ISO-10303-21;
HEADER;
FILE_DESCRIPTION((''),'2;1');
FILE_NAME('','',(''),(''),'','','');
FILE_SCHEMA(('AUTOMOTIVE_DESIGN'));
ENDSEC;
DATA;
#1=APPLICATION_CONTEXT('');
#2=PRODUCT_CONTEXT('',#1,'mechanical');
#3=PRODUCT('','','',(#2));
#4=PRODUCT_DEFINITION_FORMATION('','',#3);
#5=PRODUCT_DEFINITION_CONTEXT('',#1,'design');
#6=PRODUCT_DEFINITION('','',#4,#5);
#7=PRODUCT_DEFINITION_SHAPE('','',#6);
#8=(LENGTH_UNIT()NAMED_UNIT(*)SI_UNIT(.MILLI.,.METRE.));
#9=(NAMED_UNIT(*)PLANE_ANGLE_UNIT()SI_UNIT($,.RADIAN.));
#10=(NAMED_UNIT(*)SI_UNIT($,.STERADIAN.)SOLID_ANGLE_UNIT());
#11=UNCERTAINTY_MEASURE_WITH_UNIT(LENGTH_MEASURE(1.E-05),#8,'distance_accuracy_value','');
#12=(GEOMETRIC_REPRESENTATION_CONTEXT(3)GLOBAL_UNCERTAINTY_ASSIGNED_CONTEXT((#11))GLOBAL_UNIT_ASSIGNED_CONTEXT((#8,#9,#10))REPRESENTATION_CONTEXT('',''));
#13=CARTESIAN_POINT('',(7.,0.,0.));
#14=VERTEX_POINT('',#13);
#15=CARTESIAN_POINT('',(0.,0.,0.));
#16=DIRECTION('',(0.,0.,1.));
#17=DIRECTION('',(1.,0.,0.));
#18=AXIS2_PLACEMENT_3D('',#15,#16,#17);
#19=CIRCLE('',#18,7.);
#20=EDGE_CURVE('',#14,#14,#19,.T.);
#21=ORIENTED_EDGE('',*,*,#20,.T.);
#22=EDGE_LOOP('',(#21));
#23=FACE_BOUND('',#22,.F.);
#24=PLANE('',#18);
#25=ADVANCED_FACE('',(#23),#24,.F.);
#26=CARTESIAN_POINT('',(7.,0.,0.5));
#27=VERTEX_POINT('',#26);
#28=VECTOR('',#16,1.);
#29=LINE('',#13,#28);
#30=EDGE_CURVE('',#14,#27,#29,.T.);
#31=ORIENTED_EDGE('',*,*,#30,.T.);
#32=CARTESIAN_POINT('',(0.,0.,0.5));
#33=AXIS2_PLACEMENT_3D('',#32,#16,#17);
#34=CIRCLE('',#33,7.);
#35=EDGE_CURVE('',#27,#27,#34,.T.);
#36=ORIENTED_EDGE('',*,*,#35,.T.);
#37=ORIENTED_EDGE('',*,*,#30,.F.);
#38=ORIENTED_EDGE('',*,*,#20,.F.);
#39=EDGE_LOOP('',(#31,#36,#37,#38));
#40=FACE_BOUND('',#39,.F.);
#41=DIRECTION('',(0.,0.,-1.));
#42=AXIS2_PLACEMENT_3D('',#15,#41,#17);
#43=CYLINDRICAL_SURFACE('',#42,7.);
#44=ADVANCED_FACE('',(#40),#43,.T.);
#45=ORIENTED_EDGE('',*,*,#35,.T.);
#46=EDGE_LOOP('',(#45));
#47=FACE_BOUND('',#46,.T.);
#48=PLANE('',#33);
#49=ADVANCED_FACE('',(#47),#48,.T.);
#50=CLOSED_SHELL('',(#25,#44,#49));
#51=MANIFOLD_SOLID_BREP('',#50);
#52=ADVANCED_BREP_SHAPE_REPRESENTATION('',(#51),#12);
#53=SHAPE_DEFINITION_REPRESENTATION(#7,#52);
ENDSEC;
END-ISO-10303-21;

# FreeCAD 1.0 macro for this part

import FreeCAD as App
import Part
import Sketcher
from FreeCAD import Vector

doc = App.newDocument("Part")
params = doc.addObject("Spreadsheet::Sheet", "Params")
for row, (alias, value) in enumerate([
    ("sketch1_diameter", "14 mm"),
    ("pad1_length", "0.5 mm"),
], start=1):
    params.set(f"A{row}", alias)
    params.set(f"B{row}", "=" + value)
    params.setAlias(f"B{row}", alias)

body = doc.addObject("PartDesign::Body", "Body")

# Sketch on XY plane
sketch1 = doc.addObject("Sketcher::SketchObject", "Sketch")
body.addObject(sketch1)
sketch1.AttachmentSupport = (doc.XY_Plane, [""])
sketch1.MapMode = "FlatFace"
sketch1.addGeometry(Part.Circle(Vector(0, 0, 0), Vector(0, 0, 1), 7), False)
sketch1.addConstraint(Sketcher.Constraint("Coincident", 0, 3, -1, 1))
sketch1.addConstraint(Sketcher.Constraint("Diameter", 0, 14.0))
sketch1.setExpression("Constraints[1]", "Params.sketch1_diameter")
pad1 = doc.addObject("PartDesign::Pad", "Pad")
body.addObject(pad1)
pad1.Profile = sketch1
pad1.setExpression("Length", "Params.pad1_length")

doc.recompute()
